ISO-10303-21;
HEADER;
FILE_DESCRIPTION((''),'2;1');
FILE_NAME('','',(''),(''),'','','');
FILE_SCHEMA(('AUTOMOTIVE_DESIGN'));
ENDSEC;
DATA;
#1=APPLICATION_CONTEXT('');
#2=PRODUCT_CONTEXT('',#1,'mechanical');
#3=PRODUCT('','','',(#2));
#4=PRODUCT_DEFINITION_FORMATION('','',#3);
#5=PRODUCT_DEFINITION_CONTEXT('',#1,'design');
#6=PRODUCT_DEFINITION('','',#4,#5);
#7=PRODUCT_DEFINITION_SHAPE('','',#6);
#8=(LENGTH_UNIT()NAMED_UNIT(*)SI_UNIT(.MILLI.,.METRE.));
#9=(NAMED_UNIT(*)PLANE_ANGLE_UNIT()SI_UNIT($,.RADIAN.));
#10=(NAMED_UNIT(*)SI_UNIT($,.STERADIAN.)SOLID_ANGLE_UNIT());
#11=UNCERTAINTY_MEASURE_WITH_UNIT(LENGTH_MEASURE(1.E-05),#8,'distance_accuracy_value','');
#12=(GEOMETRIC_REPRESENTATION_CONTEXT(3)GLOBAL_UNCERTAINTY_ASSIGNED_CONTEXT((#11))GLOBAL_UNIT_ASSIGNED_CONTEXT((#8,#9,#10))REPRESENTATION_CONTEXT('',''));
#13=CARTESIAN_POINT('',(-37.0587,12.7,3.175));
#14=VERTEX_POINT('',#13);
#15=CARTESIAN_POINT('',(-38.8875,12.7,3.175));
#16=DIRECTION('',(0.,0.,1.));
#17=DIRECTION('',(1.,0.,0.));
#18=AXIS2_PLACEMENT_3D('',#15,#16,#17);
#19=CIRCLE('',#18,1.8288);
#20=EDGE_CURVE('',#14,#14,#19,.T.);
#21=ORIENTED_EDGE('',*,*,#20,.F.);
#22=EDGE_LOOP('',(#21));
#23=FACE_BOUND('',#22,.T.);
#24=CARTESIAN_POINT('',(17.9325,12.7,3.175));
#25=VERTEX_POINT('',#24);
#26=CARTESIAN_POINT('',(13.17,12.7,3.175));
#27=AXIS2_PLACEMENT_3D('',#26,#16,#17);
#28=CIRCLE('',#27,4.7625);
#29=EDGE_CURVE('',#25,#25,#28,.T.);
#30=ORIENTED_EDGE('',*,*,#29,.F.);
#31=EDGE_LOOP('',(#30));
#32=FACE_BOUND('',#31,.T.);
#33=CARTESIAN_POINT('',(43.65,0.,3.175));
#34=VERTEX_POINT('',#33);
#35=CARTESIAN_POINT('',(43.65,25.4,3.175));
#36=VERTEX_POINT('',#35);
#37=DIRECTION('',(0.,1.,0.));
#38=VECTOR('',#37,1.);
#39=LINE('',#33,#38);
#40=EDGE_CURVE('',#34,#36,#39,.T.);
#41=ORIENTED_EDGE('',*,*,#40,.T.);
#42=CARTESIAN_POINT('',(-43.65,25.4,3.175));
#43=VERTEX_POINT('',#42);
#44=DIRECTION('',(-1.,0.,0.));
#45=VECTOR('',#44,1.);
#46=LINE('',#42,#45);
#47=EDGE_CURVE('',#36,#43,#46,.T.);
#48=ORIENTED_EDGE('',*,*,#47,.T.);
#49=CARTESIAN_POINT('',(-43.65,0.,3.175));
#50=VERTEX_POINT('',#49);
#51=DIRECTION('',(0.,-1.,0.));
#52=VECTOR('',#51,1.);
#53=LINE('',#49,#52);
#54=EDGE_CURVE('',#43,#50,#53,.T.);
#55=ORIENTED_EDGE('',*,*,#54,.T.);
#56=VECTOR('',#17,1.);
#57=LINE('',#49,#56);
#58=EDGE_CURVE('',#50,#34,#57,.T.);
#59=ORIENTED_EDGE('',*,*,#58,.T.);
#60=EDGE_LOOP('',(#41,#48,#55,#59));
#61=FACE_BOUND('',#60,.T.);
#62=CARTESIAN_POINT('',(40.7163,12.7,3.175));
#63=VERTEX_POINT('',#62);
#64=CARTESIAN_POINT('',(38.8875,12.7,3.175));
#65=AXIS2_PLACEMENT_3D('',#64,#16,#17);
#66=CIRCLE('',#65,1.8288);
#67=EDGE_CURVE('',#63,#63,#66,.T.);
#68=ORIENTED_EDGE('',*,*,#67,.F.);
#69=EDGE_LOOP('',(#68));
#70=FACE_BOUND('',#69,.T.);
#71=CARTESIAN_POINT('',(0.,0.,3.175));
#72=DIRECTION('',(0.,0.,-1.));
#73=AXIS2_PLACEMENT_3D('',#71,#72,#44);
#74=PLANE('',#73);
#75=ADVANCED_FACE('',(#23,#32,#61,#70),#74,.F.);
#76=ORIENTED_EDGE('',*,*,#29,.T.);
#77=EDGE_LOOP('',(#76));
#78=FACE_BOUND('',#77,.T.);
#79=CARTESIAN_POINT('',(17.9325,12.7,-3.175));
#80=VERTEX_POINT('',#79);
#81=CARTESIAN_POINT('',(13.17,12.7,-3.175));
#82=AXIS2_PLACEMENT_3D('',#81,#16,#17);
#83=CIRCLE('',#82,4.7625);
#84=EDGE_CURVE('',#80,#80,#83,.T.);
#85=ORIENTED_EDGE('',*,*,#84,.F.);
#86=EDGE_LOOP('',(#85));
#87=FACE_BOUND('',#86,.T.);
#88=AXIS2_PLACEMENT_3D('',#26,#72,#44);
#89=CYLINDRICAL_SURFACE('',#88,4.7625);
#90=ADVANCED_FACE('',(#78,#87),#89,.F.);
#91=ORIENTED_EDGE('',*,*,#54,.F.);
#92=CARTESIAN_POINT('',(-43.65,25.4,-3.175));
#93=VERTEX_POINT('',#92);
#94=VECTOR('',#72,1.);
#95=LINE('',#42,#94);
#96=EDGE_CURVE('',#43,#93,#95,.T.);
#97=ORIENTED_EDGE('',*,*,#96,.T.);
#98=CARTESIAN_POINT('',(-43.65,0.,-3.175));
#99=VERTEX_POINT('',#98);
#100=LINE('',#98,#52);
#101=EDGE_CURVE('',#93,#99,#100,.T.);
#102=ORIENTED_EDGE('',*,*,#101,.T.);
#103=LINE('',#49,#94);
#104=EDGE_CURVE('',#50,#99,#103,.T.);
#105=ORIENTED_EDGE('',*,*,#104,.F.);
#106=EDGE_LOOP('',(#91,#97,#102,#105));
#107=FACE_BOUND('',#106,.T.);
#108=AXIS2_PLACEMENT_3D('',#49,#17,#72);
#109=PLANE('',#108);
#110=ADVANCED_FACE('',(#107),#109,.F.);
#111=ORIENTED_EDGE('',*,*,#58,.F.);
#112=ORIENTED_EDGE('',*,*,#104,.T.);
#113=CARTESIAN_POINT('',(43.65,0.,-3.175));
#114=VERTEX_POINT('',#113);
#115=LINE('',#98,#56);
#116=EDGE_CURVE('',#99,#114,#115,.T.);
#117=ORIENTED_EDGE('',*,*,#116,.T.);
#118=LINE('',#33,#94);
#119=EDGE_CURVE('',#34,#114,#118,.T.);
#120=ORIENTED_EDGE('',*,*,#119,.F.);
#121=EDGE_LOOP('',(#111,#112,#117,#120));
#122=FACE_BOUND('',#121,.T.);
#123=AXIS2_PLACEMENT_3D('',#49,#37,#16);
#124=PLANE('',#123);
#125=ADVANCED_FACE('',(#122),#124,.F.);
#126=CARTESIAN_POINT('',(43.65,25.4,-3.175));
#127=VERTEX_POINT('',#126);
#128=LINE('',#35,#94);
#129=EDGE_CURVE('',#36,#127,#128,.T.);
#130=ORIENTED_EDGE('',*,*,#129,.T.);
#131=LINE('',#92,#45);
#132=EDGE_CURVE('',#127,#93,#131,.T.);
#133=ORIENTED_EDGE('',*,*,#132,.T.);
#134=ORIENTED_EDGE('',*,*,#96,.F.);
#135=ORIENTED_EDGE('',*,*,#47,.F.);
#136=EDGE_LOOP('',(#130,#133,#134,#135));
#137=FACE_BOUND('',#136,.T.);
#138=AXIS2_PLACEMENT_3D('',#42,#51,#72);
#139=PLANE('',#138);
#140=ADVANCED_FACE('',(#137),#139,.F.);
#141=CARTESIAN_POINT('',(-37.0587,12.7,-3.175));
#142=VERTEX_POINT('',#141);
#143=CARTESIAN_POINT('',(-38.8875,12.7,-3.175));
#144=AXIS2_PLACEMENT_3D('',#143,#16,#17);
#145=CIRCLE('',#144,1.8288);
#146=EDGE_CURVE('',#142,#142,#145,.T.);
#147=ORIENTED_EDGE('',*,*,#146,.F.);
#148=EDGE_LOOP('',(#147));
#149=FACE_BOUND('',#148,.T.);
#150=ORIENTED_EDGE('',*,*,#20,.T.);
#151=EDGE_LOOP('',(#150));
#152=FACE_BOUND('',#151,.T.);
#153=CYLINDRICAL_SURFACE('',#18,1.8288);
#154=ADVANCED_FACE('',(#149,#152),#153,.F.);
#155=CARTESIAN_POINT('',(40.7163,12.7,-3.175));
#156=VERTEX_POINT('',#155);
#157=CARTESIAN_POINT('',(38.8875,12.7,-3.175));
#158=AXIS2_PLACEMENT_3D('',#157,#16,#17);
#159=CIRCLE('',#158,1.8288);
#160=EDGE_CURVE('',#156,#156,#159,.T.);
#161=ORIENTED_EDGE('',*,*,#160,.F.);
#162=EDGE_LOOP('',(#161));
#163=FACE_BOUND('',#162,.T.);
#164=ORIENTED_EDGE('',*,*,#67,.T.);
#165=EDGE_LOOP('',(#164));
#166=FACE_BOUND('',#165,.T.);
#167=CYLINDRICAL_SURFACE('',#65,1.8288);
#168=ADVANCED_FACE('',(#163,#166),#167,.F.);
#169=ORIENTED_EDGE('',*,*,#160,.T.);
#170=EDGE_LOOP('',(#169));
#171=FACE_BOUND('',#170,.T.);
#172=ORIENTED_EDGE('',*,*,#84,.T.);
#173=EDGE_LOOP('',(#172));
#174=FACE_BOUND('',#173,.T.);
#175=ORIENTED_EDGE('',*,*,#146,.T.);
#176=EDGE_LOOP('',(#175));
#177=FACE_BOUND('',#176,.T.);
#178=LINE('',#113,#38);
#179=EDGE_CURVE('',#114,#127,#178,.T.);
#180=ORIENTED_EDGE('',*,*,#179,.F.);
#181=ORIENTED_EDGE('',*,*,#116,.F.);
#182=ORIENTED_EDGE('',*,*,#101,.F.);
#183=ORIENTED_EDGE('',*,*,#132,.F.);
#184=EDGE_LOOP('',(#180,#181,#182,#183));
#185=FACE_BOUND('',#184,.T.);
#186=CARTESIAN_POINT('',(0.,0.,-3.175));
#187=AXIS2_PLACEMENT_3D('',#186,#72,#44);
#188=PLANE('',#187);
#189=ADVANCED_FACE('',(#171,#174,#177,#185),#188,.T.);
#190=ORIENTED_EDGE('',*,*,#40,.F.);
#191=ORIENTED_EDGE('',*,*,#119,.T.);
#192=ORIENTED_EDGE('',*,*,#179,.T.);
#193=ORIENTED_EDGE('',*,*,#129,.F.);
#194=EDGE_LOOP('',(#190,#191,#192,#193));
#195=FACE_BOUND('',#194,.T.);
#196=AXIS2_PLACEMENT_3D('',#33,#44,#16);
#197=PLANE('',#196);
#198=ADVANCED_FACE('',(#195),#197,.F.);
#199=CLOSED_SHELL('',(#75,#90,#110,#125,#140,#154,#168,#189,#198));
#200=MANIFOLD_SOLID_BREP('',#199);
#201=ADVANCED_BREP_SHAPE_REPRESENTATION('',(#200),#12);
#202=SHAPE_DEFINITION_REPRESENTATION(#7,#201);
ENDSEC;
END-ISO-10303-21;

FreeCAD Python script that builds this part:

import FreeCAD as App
import Part
import Sketcher
from FreeCAD import Vector
Q = App.Units.Quantity

doc = App.newDocument("Part")
body = doc.addObject("PartDesign::Body", "Body")

sketch1 = body.newObject("Sketcher::SketchObject", "Sketch")
sketch1.AttachmentSupport = (doc.getObject("XY_Plane"), [""])
sketch1.MapMode = "FlatFace"
sketch1.addGeometry([
    Part.LineSegment(Vector(-43.6, 25.4, 0), Vector(-43.6, 0, 0)),
    Part.LineSegment(Vector(-43.6, 0, 0), Vector(43.6, 0, 0)),
    Part.LineSegment(Vector(43.6, 0, 0), Vector(43.6, 25.4, 0)),
    Part.LineSegment(Vector(43.6, 25.4, 0), Vector(-43.6, 25.4, 0)),
    Part.Circle(Vector(13.2, 12.7, 0), Vector(0, 0, 1), 4.8),
], False)
sketch1.addConstraint([
    Sketcher.Constraint("Coincident", 0, 2, 1, 1),
    Sketcher.Constraint("Coincident", 1, 2, 2, 1),
    Sketcher.Constraint("Coincident", 2, 2, 3, 1),
    Sketcher.Constraint("Coincident", 3, 2, 0, 1),
    Sketcher.Constraint("Vertical", 0),
    Sketcher.Constraint("Horizontal", 1),
    Sketcher.Constraint("Vertical", 2),
    Sketcher.Constraint("Horizontal", 3),
    Sketcher.Constraint("Symmetric", 0, 2, 1, 2, -1, 1),
    Sketcher.Constraint("DistanceY", 0, 2, 0, 1, Q("1 in")),
    Sketcher.Constraint("Diameter", 4, Q("0.375 in")),
    Sketcher.Constraint("DistanceY", -1, 1, 4, 3, Q("0.5 in")),
    Sketcher.Constraint("DistanceX", 4, 3, 1, 2, Q("1.2 in")),
    Sketcher.Constraint("DistanceX", 1, 1, 1, 2, 87.3),
])
pad1 = body.newObject("PartDesign::Pad", "Pad")
pad1.Profile = sketch1
pad1.Length = Q("0.25 in")
pad1.Midplane = True

sketch2 = body.newObject("Sketcher::SketchObject", "Sketch001")
sketch2.AttachmentSupport = (doc.getObject("XY_Plane"), [""])
sketch2.MapMode = "FlatFace"
sketch2.AttachmentOffset = App.Placement(Vector(0, 0, 0.125 * 25.4), App.Rotation())
sketch2.addGeometry([
    Part.Circle(Vector(-38.9, 12.7, 0), Vector(0, 0, 1), 1.8),
    Part.Circle(Vector(38.9, 12.7, 0), Vector(0, 0, 1), 1.8),
], False)
sketch2.addConstraint([
    Sketcher.Constraint("Equal", 0, 1),
    Sketcher.Constraint("Symmetric", 0, 3, 1, 3, -2),
    Sketcher.Constraint("Diameter", 0, Q("0.144 in")),
    Sketcher.Constraint("DistanceY", -1, 1, 0, 3, Q("0.5 in")),
    Sketcher.Constraint("DistanceX", 0, 3, -1, 1, 38.8875),
])
doc.recompute()
hole = body.newObject("PartDesign::Hole", "Hole")
hole.Profile = sketch2
hole.ThreadType = "None"
hole.Diameter = Q("0.144 in")
hole.DepthType = "ThroughAll"

doc.recompute()
